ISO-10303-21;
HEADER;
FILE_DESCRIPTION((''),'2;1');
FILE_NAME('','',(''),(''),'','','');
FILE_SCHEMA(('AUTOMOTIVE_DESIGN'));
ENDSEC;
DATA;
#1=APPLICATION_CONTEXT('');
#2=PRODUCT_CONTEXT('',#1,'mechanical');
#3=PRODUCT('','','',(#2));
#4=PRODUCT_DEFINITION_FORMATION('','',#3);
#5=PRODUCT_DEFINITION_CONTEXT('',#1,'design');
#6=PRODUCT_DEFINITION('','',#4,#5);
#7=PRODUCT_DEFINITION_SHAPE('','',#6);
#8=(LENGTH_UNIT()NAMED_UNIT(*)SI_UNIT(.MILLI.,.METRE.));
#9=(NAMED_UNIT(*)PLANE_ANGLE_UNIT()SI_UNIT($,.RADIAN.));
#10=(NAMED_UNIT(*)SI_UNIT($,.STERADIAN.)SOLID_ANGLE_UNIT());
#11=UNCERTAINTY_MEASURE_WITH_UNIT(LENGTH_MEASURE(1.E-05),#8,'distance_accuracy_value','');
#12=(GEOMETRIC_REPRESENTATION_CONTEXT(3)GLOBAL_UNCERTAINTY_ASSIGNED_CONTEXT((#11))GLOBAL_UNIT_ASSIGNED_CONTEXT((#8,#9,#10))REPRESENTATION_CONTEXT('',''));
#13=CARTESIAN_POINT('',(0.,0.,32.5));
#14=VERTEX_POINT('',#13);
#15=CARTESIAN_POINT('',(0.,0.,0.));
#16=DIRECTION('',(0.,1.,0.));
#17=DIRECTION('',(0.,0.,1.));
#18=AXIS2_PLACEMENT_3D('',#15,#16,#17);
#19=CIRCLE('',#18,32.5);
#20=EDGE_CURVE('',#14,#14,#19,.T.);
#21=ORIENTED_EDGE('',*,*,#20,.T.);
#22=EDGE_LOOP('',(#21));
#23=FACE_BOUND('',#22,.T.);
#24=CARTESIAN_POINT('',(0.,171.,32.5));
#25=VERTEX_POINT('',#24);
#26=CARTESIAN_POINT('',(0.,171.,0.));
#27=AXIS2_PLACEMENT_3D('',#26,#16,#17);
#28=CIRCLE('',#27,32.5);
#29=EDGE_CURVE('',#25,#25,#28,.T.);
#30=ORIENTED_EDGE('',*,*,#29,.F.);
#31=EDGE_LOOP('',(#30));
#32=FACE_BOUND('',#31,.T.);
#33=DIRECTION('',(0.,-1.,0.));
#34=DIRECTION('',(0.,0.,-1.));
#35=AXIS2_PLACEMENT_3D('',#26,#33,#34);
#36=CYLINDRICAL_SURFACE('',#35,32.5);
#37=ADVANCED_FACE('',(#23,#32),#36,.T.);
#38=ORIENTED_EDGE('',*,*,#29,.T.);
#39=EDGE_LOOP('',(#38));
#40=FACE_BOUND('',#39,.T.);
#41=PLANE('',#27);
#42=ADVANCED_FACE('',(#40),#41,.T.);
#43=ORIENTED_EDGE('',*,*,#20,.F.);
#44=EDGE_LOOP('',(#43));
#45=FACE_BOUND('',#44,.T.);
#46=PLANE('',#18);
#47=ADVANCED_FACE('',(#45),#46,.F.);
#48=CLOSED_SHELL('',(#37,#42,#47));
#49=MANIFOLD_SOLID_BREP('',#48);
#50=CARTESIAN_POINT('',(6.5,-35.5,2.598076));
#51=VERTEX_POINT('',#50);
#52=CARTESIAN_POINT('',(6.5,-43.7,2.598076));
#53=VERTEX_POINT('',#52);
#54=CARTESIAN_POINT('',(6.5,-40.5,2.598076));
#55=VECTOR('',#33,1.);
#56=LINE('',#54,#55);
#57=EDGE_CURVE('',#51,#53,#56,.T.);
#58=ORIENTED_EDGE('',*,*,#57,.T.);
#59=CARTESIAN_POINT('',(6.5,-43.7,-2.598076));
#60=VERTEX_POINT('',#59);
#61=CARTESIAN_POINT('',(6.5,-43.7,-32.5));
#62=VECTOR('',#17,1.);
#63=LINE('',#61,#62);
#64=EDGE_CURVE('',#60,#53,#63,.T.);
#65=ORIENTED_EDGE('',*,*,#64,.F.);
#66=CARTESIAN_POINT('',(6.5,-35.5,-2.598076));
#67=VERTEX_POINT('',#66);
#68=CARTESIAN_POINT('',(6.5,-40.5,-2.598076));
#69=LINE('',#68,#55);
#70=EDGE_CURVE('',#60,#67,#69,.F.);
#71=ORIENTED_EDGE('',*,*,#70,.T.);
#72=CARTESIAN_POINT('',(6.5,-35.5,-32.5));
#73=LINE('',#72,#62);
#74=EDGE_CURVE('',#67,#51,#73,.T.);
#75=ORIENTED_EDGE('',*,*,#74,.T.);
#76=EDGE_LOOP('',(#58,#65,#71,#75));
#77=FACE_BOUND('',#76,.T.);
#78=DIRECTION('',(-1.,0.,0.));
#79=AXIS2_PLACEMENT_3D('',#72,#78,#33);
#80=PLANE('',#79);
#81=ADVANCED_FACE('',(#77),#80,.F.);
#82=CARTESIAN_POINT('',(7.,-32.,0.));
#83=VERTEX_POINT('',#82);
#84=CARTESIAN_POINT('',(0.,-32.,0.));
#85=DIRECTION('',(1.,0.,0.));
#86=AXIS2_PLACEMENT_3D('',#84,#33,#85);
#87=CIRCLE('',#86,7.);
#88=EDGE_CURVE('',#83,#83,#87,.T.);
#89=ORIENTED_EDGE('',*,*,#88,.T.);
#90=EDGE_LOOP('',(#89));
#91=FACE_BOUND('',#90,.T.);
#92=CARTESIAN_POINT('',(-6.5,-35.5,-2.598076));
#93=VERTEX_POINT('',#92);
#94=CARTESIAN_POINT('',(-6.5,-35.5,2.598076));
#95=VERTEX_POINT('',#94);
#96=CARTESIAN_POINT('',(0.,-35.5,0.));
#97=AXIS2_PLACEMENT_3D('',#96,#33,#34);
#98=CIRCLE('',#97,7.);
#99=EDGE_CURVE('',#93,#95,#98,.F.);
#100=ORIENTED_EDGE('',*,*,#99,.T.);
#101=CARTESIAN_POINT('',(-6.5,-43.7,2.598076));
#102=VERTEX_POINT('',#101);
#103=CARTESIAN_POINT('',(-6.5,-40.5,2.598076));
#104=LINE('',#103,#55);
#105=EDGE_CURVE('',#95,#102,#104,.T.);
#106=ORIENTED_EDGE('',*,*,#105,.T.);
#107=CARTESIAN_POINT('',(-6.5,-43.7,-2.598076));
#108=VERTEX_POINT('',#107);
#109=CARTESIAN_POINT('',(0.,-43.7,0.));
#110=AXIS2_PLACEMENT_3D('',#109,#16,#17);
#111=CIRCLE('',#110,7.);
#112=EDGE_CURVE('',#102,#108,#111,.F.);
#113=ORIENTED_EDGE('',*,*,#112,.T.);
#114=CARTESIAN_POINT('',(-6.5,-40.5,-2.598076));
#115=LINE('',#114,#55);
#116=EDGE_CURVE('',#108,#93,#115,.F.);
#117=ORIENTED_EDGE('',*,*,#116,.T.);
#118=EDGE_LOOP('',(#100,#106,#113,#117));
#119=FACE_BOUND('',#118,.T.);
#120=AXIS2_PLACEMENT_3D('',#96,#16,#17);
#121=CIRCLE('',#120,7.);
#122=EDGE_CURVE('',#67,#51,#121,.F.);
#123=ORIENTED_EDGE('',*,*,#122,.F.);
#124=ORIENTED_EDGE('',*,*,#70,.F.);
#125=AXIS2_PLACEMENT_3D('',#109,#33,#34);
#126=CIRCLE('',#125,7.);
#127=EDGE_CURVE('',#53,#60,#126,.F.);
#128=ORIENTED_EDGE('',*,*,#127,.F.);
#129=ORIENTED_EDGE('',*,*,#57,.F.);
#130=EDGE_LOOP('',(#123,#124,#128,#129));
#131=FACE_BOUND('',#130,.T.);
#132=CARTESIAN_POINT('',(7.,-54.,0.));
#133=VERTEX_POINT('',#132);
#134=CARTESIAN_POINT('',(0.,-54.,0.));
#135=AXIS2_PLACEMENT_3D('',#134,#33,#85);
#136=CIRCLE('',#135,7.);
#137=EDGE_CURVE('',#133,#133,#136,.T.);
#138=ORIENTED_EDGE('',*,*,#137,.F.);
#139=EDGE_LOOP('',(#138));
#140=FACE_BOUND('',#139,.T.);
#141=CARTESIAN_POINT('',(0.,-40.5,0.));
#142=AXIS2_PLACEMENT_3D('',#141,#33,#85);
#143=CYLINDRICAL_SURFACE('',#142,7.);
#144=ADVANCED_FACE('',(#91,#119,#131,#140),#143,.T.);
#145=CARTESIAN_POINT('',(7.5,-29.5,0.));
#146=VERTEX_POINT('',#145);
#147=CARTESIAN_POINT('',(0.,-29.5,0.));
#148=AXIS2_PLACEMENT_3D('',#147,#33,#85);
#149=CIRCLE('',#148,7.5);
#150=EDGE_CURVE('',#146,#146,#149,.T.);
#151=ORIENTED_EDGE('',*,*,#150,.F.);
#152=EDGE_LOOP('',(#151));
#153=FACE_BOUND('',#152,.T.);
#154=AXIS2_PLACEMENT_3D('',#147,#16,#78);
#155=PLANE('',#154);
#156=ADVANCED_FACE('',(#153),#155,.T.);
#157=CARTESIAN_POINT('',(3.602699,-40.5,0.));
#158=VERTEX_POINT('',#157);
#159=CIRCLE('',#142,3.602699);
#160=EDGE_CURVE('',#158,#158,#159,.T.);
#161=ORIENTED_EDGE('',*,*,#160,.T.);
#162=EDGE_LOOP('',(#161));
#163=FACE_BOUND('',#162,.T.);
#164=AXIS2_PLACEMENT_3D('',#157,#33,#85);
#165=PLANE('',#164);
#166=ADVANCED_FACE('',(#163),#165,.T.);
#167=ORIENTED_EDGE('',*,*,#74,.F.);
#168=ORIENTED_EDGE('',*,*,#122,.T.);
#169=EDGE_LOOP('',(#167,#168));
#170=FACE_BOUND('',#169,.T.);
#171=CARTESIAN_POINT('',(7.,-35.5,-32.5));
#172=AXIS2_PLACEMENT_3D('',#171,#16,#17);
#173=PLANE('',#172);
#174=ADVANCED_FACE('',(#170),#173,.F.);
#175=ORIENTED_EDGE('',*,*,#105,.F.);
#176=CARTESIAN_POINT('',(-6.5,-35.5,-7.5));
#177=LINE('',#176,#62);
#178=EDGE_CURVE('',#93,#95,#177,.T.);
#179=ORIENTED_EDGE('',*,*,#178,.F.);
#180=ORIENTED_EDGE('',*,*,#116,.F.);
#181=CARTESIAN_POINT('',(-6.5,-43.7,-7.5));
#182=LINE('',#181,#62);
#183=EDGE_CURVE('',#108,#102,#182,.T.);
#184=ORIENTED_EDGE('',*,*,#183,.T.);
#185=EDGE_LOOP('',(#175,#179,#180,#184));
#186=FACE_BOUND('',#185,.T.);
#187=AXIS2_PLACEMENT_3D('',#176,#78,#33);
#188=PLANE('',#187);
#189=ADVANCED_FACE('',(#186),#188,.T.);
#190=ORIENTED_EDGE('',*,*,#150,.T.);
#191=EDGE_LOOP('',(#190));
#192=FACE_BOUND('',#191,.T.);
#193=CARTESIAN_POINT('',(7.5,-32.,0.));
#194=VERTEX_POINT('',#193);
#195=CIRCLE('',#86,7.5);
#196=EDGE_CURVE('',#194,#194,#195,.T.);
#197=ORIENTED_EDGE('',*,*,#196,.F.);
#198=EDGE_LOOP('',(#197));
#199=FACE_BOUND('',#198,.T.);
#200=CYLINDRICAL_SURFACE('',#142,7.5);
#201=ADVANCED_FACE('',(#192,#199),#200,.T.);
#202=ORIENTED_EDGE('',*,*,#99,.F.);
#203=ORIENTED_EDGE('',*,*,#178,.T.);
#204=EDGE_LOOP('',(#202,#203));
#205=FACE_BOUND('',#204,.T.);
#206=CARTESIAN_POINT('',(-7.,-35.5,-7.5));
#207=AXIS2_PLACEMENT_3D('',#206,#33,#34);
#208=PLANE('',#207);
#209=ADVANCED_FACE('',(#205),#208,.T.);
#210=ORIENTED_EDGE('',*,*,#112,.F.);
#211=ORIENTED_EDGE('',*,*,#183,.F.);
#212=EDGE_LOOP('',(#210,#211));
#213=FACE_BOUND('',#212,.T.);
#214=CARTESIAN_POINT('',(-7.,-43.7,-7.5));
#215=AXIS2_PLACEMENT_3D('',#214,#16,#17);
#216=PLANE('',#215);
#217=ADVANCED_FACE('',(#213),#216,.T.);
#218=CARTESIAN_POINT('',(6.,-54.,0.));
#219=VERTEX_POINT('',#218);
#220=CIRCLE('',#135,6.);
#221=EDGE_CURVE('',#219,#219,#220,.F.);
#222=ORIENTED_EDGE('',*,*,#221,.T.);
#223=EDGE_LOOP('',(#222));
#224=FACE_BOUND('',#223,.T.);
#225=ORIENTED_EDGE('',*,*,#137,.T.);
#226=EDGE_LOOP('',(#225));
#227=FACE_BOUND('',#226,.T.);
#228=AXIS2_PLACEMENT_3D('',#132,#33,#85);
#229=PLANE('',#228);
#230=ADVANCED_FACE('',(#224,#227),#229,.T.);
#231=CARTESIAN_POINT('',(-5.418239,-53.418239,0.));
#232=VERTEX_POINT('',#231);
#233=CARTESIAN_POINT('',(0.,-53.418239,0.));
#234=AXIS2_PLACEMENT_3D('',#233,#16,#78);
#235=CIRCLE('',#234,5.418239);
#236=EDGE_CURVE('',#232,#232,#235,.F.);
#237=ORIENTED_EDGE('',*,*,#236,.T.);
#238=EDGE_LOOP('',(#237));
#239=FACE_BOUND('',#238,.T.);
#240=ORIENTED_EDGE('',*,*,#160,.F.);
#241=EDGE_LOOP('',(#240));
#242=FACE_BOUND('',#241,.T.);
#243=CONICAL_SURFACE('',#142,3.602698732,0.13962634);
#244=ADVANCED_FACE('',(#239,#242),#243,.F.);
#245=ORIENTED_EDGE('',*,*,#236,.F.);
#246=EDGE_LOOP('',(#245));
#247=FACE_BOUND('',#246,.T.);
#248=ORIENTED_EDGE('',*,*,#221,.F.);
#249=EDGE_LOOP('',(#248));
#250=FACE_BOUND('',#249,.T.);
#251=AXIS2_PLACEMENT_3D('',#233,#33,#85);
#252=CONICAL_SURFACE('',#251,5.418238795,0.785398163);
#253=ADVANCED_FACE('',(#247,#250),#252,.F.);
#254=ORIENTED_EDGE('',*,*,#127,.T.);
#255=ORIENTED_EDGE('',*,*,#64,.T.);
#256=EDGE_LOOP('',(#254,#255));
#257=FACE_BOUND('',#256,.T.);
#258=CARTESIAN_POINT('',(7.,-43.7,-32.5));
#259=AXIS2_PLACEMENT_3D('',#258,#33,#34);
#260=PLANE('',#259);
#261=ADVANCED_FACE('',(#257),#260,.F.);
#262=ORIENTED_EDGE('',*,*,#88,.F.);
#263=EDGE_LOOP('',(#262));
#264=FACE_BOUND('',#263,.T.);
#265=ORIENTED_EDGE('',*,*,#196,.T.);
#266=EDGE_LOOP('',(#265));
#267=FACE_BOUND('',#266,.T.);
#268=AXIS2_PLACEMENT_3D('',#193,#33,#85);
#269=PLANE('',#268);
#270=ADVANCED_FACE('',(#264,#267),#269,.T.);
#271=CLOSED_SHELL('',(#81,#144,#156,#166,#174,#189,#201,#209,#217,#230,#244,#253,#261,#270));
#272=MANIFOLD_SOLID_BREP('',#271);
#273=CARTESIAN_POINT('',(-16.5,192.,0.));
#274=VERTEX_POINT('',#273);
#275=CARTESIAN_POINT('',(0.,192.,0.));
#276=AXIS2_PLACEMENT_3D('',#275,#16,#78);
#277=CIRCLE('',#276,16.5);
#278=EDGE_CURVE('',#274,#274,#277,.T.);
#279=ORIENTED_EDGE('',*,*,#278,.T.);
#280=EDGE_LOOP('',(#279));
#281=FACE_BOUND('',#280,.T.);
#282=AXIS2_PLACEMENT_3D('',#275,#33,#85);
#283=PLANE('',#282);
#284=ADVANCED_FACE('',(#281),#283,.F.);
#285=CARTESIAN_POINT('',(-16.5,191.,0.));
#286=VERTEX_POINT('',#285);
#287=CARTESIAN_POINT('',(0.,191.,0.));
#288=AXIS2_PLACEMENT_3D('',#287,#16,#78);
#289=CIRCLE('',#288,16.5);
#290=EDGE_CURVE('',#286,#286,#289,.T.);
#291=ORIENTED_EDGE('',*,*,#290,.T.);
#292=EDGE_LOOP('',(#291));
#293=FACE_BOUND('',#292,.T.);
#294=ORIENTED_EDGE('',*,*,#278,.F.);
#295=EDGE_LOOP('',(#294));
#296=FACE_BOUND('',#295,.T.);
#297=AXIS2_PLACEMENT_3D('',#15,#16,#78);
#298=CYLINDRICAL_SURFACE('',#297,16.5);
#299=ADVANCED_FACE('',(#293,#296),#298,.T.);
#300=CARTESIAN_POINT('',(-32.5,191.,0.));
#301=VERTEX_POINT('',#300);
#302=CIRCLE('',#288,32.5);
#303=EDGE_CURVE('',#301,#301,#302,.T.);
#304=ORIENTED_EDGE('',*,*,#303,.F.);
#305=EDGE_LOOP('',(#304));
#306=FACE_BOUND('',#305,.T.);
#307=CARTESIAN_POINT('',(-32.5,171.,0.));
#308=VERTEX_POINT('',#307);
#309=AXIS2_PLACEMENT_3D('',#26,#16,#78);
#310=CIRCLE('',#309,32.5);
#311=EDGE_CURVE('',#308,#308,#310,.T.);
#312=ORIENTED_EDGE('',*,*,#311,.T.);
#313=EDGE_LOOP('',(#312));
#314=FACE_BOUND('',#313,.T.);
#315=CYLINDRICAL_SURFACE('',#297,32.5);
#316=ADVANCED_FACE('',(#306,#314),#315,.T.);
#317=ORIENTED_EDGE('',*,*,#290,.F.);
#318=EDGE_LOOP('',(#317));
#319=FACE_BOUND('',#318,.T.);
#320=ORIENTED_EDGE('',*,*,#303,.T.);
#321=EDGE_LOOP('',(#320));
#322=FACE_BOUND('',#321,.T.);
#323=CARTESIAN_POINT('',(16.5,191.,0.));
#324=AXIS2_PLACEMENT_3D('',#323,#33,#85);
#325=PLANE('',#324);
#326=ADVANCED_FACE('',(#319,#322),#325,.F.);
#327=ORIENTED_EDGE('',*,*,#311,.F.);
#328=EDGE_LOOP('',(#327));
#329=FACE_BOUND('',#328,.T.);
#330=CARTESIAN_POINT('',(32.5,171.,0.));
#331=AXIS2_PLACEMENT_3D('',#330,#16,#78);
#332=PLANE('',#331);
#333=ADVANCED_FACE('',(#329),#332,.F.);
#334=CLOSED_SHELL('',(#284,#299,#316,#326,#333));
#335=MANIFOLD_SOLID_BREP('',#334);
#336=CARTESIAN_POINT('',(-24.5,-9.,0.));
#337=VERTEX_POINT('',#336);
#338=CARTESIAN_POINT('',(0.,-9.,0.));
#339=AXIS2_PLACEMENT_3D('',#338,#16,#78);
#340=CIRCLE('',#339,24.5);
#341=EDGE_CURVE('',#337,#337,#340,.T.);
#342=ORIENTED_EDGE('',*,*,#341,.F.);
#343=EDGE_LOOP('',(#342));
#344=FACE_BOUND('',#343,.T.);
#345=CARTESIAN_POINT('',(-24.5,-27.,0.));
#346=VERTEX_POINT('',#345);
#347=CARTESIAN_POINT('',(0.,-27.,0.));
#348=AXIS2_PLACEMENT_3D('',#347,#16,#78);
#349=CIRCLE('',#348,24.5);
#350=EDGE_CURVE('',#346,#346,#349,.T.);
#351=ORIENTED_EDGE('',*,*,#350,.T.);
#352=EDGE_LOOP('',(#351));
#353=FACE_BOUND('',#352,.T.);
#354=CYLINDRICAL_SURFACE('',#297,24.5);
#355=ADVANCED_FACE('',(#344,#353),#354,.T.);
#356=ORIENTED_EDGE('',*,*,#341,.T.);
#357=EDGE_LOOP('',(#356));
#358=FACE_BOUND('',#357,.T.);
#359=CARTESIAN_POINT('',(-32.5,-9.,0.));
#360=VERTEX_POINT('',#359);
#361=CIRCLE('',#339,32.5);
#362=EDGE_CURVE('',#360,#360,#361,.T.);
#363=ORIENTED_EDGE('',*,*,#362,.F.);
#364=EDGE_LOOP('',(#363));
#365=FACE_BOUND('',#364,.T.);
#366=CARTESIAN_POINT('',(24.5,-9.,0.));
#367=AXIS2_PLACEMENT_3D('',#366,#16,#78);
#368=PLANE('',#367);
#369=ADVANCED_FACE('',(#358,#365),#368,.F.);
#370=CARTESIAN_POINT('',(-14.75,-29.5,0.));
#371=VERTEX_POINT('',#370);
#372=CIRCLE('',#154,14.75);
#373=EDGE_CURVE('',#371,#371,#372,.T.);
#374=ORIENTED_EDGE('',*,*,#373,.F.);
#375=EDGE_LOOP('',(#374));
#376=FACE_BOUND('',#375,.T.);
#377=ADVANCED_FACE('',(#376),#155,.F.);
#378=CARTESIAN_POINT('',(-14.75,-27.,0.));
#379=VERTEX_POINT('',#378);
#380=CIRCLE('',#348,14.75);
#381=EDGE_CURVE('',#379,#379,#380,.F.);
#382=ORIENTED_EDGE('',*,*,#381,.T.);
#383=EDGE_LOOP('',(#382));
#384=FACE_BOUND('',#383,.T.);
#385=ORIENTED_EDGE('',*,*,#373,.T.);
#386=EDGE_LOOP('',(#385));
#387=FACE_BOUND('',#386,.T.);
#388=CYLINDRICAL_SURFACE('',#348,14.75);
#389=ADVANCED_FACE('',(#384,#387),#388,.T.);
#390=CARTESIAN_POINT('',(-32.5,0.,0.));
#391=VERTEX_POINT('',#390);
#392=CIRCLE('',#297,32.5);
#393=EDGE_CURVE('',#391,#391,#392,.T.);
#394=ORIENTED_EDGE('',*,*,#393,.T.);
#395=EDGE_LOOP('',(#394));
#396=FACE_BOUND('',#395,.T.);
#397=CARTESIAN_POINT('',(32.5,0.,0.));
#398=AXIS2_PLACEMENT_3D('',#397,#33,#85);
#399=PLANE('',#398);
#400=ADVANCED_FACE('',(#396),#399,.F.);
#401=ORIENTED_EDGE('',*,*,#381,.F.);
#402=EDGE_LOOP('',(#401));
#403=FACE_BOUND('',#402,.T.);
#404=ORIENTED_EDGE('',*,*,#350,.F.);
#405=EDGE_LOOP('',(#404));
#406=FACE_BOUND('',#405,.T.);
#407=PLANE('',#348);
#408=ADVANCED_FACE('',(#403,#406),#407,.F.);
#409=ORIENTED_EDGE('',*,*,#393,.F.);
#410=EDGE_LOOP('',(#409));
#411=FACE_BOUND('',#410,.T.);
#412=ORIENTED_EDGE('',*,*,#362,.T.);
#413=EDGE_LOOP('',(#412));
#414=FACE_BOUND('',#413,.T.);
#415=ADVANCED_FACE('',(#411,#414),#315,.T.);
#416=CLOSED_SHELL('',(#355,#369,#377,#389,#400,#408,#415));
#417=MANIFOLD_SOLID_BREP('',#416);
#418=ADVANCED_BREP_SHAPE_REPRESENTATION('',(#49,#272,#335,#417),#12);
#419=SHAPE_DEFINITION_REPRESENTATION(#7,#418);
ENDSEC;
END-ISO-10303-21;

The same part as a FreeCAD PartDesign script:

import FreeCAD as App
import Part
import Sketcher
Q = App.Units.Quantity


def edges_at(feature, points):
    """Names of the edges that pass closest to the given points."""
    edges = feature.Shape.Edges
    near = lambda p: min(range(len(edges)), key=lambda i: edges[i].distToShape(Part.Vertex(*p))[0])
    return sorted({f"Edge{near(p) + 1}" for p in points})


def add_polygon(sketch, points):
    """Adds a closed chain of lines whose ends are joined by coincident constraints."""
    first, n = sketch.GeometryCount, len(points)
    for a, b in zip(points, points[1:] + points[:1]):
        sketch.addGeometry(Part.LineSegment(App.Vector(*a, 0), App.Vector(*b, 0)), False)
    for i in range(n):
        sketch.addConstraint(Sketcher.Constraint("Coincident", first + i, 2, first + (i + 1) % n, 1))

doc = App.newDocument("Part")
body = doc.addObject("PartDesign::Body", "Body")

# Sketch on XZ plane
sketch1 = doc.addObject("Sketcher::SketchObject", "Sketch")
body.addObject(sketch1)
sketch1.AttachmentSupport = (doc.XZ_Plane, [""])
sketch1.MapMode = "FlatFace"
sketch1.addGeometry(Part.Circle(App.Vector(0, 0, 0), App.Vector(0, 0, 1), 32.5), False)
sketch1.addConstraint(Sketcher.Constraint("Coincident", 0, 3, -1, 1))
sketch1.addConstraint(Sketcher.Constraint("Diameter", 0, 65.0))
pad1 = doc.addObject("PartDesign::Pad", "Pad")
body.addObject(pad1)
pad1.Profile = sketch1
pad1.Length = 171
pad1.Reversed = True
body2 = doc.addObject("PartDesign::Body", "Body001")
body2.AllowCompound = True

# Sketch on XY plane
sketch2 = doc.addObject("Sketcher::SketchObject", "Sketch001")
body2.addObject(sketch2)
sketch2.AttachmentSupport = (doc.getObject("XY_Plane001"), [""])
sketch2.MapMode = "FlatFace"
add_polygon(sketch2, [(0, 0), (0, -27), (24.5, -27), (24.5, -9), (32.5, -9), (32.5, 0)])  # lines 0-5
add_polygon(sketch2, [(0, 192), (0, 171), (32.5, 171), (32.5, 191), (16.5, 191), (16.5, 192)])  # lines 6-11
sketch2.addConstraint(Sketcher.Constraint("Vertical", 0))
sketch2.addConstraint(Sketcher.Constraint("Horizontal", 1))
sketch2.addConstraint(Sketcher.Constraint("Vertical", 2))
sketch2.addConstraint(Sketcher.Constraint("Horizontal", 3))
sketch2.addConstraint(Sketcher.Constraint("Vertical", 4))
sketch2.addConstraint(Sketcher.Constraint("Horizontal", 5))
sketch2.addConstraint(Sketcher.Constraint("Vertical", 6))
sketch2.addConstraint(Sketcher.Constraint("Horizontal", 7))
sketch2.addConstraint(Sketcher.Constraint("Vertical", 8))
sketch2.addConstraint(Sketcher.Constraint("Horizontal", 9))
sketch2.addConstraint(Sketcher.Constraint("Vertical", 10))
sketch2.addConstraint(Sketcher.Constraint("Horizontal", 11))
sketch2.addConstraint(Sketcher.Constraint("Coincident", 5, 2, -1, 1))
sketch2.addConstraint(Sketcher.Constraint("PointOnObject", 6, 2, -2))
sketch2.addConstraint(Sketcher.Constraint("Vertical", 4, 2, 7, 2))
sketch2.addConstraint(Sketcher.Constraint("DistanceX", 3, 1, 3, 2, 8.0))
sketch2.addConstraint(Sketcher.Constraint("DistanceX", 9, 2, 9, 1, 16.0))
sketch2.addConstraint(Sketcher.Constraint("DistanceY", 0, 2, 0, 1, 27.0))
sketch2.addConstraint(Sketcher.Constraint("DistanceY", 2, 1, 2, 2, 18.0))
sketch2.addConstraint(Sketcher.Constraint("DistanceY", 6, 2, 6, 1, 21.0))
sketch2.addConstraint(Sketcher.Constraint("DistanceY", 8, 1, 8, 2, 20.0))
sketch2.addConstraint(Sketcher.Constraint("DistanceX", 1, 1, 1, 2, 24.5))
sketch2.addConstraint(Sketcher.Constraint("DistanceY", -1, 1, 6, 2, 171.0))
revolution = doc.addObject("PartDesign::Revolution", "Revolution")
body2.addObject(revolution)
revolution.Profile = sketch2
revolution.ReferenceAxis = (sketch2, ["V_Axis"])
revolution.Angle = 360

# Sketch on XY plane
sketch3 = doc.addObject("Sketcher::SketchObject", "Sketch002")
body2.addObject(sketch3)
sketch3.AttachmentSupport = (doc.getObject("XY_Plane001"), [""])
sketch3.MapMode = "FlatFace"
add_polygon(sketch3, [(0, -27), (0, -29.5), (14.75, -29.5), (14.75, -27)])  # lines 0-3
sketch3.addConstraint(Sketcher.Constraint("Vertical", 0))
sketch3.addConstraint(Sketcher.Constraint("Horizontal", 1))
sketch3.addConstraint(Sketcher.Constraint("Vertical", 2))
sketch3.addConstraint(Sketcher.Constraint("Horizontal", 3))
sketch3.addConstraint(Sketcher.Constraint("PointOnObject", 0, 2, -2))
sketch3.addConstraint(Sketcher.Constraint("DistanceY", 0, 2, 0, 1, 2.5))
sketch3.addConstraint(Sketcher.Constraint("DistanceY", 2, 2, -1, 1, 27.0))
sketch3.addConstraint(Sketcher.Constraint("DistanceX", 1, 1, 1, 2, 14.75))
revolution2 = doc.addObject("PartDesign::Revolution", "Revolution001")
body2.addObject(revolution2)
revolution2.Profile = sketch3
revolution2.ReferenceAxis = (sketch3, ["V_Axis"])
revolution2.Angle = 360
body3 = doc.addObject("PartDesign::Body", "Body002")

# Sketch on XY plane
sketch4 = doc.addObject("Sketcher::SketchObject", "Sketch003")
body3.addObject(sketch4)
sketch4.AttachmentSupport = (doc.getObject("XY_Plane002"), [""])
sketch4.MapMode = "FlatFace"
add_polygon(sketch4, [(7.5, -32), (7.5, -29.5), (0, -29.5), (0, -40.5), (3.602699, -40.5), (5.5, -54), (7, -54), (7, -32)])  # lines 0-7
sketch4.addConstraint(Sketcher.Constraint("Vertical", 0))
sketch4.addConstraint(Sketcher.Constraint("Horizontal", 1))
sketch4.addConstraint(Sketcher.Constraint("Vertical", 2))
sketch4.addConstraint(Sketcher.Constraint("Horizontal", 3))
sketch4.addConstraint(Sketcher.Constraint("Horizontal", 5))
sketch4.addConstraint(Sketcher.Constraint("Vertical", 6))
sketch4.addConstraint(Sketcher.Constraint("Horizontal", 7))
sketch4.addConstraint(Sketcher.Constraint("PointOnObject", 1, 2, -2))
sketch4.addConstraint(Sketcher.Constraint("DistanceY", 2, 2, 2, 1, 11.0))
sketch4.addConstraint(Sketcher.Constraint("DistanceY", 6, 1, 6, 2, 22.0))
sketch4.addConstraint(Sketcher.Constraint("Angle", 4, Q("-82 deg")))
sketch4.addConstraint(Sketcher.Constraint("DistanceX", 1, 2, 1, 1, 7.5))
sketch4.addConstraint(Sketcher.Constraint("DistanceX", 5, 1, 5, 2, 1.5))
sketch4.addConstraint(Sketcher.Constraint("DistanceX", 7, 1, 7, 2, 0.5))
sketch4.addConstraint(Sketcher.Constraint("DistanceY", 0, 1, 0, 2, 2.5))
sketch4.addConstraint(Sketcher.Constraint("DistanceY", 4, 2, -1, 1, 54.0))
revolution3 = doc.addObject("PartDesign::Revolution", "Revolution002")
body3.addObject(revolution3)
revolution3.Profile = sketch4
revolution3.ReferenceAxis = (sketch4, ["V_Axis"])
revolution3.Angle = 360

# Sketch on XY plane
sketch5 = doc.addObject("Sketcher::SketchObject", "Sketch004")
body3.addObject(sketch5)
sketch5.AttachmentSupport = (doc.getObject("XY_Plane002"), [""])
sketch5.MapMode = "FlatFace"
add_polygon(sketch5, [(6.5, -35.5), (6.5, -43.7), (7, -43.7), (7, -35.5)])  # lines 0-3
sketch5.addConstraint(Sketcher.Constraint("Vertical", 0))
sketch5.addConstraint(Sketcher.Constraint("Horizontal", 1))
sketch5.addConstraint(Sketcher.Constraint("Vertical", 2))
sketch5.addConstraint(Sketcher.Constraint("Horizontal", 3))
sketch5.addConstraint(Sketcher.Constraint("DistanceX", 1, 1, 1, 2, 0.5))
sketch5.addConstraint(Sketcher.Constraint("DistanceY", 0, 2, 0, 1, 8.2))
sketch5.addConstraint(Sketcher.Constraint("DistanceX", -1, 1, 1, 2, 7.0))
sketch5.addConstraint(Sketcher.Constraint("DistanceY", 0, 2, -1, 1, 43.7))
pocket1 = doc.addObject("PartDesign::Pocket", "Pocket")
body3.addObject(pocket1)
pocket1.Profile = sketch5
pocket1.Length = 396.849338
pocket1.Midplane = True
doc.recompute()

mirrored = doc.addObject("PartDesign::Mirrored", "Mirrored")
body3.addObject(mirrored)
mirrored.Originals = [pocket1]
mirrored.MirrorPlane = (doc.getObject("YZ_Plane002"), [""])
body3.Tip = mirrored
doc.recompute()

chamfer = doc.addObject("PartDesign::Chamfer", "Chamfer")
body3.addObject(chamfer)
chamfer.Base = (mirrored, edges_at(mirrored, [(-5.5, -54, 0)]))
chamfer.ChamferType = "Two distances"
chamfer.Size = 0.5
chamfer.Size2 = 0.587479

doc.recompute()
